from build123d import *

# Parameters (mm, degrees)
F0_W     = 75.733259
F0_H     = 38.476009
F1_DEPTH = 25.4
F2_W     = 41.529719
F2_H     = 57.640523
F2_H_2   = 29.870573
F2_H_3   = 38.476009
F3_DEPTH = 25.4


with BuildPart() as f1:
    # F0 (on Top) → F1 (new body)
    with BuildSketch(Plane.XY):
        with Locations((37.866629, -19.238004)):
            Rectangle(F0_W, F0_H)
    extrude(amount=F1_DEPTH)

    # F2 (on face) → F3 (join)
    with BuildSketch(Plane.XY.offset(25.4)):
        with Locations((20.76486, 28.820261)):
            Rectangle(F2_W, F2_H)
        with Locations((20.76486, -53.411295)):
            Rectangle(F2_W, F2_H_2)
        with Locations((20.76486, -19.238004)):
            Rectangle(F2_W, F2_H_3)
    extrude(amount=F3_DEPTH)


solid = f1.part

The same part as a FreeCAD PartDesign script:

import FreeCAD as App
import Part
import Sketcher
from FreeCAD import Vector
Q = App.Units.Quantity


def add_polygon(sketch, points):
    """Adds a closed chain of lines whose ends are joined by coincident constraints."""
    first, n = sketch.GeometryCount, len(points)
    for a, b in zip(points, points[1:] + points[:1]):
        sketch.addGeometry(Part.LineSegment(App.Vector(*a, 0), App.Vector(*b, 0)), False)
    for i in range(n):
        sketch.addConstraint(Sketcher.Constraint("Coincident", first + i, 2, first + (i + 1) % n, 1))

doc = App.newDocument("Part")
body = doc.addObject("PartDesign::Body", "Body")

sketch1 = body.newObject("Sketcher::SketchObject", "Sketch")
sketch1.AttachmentSupport = (doc.getObject("XY_Plane"), [""])
sketch1.MapMode = "FlatFace"
add_polygon(sketch1, [(0, 0), (0, -38), (76, -38), (76, 0)])
sketch1.addConstraint([
    Sketcher.Constraint("Vertical", 0),
    Sketcher.Constraint("Horizontal", 1),
    Sketcher.Constraint("Vertical", 2),
    Sketcher.Constraint("Horizontal", 3),
    Sketcher.Constraint("Coincident", 3, 2, -1, 1),
    Sketcher.Constraint("DistanceX", 1, 1, 1, 2, 75.733259),
    Sketcher.Constraint("DistanceY", 0, 2, 0, 1, 38.476009),
])
pad1 = body.newObject("PartDesign::Pad", "Pad")
pad1.Profile = sketch1
pad1.Length = Q("1 in")

sketch2 = body.newObject("Sketcher::SketchObject", "Sketch001")
sketch2.AttachmentSupport = (doc.getObject("XY_Plane"), [""])
sketch2.MapMode = "FlatFace"
sketch2.AttachmentOffset = App.Placement(Vector(0, 0, 1 * 25.4), App.Rotation())
add_polygon(sketch2, [(0, -68), (42, -68), (42, 58), (0, 58)])
sketch2.addConstraint([
    Sketcher.Constraint("Horizontal", 0),
    Sketcher.Constraint("Vertical", 1),
    Sketcher.Constraint("Horizontal", 2),
    Sketcher.Constraint("Vertical", 3),
    Sketcher.Constraint("PointOnObject", 2, 2, -2),
    Sketcher.Constraint("DistanceX", 0, 1, 0, 2, 41.529719),
    Sketcher.Constraint("DistanceY", 1, 1, 1, 2, 125.987104),
    Sketcher.Constraint("DistanceY", 0, 2, -1, 1, 68.346581),
])
pad2 = body.newObject("PartDesign::Pad", "Pad001")
pad2.Profile = sketch2
pad2.Length = Q("1 in")

doc.recompute()
